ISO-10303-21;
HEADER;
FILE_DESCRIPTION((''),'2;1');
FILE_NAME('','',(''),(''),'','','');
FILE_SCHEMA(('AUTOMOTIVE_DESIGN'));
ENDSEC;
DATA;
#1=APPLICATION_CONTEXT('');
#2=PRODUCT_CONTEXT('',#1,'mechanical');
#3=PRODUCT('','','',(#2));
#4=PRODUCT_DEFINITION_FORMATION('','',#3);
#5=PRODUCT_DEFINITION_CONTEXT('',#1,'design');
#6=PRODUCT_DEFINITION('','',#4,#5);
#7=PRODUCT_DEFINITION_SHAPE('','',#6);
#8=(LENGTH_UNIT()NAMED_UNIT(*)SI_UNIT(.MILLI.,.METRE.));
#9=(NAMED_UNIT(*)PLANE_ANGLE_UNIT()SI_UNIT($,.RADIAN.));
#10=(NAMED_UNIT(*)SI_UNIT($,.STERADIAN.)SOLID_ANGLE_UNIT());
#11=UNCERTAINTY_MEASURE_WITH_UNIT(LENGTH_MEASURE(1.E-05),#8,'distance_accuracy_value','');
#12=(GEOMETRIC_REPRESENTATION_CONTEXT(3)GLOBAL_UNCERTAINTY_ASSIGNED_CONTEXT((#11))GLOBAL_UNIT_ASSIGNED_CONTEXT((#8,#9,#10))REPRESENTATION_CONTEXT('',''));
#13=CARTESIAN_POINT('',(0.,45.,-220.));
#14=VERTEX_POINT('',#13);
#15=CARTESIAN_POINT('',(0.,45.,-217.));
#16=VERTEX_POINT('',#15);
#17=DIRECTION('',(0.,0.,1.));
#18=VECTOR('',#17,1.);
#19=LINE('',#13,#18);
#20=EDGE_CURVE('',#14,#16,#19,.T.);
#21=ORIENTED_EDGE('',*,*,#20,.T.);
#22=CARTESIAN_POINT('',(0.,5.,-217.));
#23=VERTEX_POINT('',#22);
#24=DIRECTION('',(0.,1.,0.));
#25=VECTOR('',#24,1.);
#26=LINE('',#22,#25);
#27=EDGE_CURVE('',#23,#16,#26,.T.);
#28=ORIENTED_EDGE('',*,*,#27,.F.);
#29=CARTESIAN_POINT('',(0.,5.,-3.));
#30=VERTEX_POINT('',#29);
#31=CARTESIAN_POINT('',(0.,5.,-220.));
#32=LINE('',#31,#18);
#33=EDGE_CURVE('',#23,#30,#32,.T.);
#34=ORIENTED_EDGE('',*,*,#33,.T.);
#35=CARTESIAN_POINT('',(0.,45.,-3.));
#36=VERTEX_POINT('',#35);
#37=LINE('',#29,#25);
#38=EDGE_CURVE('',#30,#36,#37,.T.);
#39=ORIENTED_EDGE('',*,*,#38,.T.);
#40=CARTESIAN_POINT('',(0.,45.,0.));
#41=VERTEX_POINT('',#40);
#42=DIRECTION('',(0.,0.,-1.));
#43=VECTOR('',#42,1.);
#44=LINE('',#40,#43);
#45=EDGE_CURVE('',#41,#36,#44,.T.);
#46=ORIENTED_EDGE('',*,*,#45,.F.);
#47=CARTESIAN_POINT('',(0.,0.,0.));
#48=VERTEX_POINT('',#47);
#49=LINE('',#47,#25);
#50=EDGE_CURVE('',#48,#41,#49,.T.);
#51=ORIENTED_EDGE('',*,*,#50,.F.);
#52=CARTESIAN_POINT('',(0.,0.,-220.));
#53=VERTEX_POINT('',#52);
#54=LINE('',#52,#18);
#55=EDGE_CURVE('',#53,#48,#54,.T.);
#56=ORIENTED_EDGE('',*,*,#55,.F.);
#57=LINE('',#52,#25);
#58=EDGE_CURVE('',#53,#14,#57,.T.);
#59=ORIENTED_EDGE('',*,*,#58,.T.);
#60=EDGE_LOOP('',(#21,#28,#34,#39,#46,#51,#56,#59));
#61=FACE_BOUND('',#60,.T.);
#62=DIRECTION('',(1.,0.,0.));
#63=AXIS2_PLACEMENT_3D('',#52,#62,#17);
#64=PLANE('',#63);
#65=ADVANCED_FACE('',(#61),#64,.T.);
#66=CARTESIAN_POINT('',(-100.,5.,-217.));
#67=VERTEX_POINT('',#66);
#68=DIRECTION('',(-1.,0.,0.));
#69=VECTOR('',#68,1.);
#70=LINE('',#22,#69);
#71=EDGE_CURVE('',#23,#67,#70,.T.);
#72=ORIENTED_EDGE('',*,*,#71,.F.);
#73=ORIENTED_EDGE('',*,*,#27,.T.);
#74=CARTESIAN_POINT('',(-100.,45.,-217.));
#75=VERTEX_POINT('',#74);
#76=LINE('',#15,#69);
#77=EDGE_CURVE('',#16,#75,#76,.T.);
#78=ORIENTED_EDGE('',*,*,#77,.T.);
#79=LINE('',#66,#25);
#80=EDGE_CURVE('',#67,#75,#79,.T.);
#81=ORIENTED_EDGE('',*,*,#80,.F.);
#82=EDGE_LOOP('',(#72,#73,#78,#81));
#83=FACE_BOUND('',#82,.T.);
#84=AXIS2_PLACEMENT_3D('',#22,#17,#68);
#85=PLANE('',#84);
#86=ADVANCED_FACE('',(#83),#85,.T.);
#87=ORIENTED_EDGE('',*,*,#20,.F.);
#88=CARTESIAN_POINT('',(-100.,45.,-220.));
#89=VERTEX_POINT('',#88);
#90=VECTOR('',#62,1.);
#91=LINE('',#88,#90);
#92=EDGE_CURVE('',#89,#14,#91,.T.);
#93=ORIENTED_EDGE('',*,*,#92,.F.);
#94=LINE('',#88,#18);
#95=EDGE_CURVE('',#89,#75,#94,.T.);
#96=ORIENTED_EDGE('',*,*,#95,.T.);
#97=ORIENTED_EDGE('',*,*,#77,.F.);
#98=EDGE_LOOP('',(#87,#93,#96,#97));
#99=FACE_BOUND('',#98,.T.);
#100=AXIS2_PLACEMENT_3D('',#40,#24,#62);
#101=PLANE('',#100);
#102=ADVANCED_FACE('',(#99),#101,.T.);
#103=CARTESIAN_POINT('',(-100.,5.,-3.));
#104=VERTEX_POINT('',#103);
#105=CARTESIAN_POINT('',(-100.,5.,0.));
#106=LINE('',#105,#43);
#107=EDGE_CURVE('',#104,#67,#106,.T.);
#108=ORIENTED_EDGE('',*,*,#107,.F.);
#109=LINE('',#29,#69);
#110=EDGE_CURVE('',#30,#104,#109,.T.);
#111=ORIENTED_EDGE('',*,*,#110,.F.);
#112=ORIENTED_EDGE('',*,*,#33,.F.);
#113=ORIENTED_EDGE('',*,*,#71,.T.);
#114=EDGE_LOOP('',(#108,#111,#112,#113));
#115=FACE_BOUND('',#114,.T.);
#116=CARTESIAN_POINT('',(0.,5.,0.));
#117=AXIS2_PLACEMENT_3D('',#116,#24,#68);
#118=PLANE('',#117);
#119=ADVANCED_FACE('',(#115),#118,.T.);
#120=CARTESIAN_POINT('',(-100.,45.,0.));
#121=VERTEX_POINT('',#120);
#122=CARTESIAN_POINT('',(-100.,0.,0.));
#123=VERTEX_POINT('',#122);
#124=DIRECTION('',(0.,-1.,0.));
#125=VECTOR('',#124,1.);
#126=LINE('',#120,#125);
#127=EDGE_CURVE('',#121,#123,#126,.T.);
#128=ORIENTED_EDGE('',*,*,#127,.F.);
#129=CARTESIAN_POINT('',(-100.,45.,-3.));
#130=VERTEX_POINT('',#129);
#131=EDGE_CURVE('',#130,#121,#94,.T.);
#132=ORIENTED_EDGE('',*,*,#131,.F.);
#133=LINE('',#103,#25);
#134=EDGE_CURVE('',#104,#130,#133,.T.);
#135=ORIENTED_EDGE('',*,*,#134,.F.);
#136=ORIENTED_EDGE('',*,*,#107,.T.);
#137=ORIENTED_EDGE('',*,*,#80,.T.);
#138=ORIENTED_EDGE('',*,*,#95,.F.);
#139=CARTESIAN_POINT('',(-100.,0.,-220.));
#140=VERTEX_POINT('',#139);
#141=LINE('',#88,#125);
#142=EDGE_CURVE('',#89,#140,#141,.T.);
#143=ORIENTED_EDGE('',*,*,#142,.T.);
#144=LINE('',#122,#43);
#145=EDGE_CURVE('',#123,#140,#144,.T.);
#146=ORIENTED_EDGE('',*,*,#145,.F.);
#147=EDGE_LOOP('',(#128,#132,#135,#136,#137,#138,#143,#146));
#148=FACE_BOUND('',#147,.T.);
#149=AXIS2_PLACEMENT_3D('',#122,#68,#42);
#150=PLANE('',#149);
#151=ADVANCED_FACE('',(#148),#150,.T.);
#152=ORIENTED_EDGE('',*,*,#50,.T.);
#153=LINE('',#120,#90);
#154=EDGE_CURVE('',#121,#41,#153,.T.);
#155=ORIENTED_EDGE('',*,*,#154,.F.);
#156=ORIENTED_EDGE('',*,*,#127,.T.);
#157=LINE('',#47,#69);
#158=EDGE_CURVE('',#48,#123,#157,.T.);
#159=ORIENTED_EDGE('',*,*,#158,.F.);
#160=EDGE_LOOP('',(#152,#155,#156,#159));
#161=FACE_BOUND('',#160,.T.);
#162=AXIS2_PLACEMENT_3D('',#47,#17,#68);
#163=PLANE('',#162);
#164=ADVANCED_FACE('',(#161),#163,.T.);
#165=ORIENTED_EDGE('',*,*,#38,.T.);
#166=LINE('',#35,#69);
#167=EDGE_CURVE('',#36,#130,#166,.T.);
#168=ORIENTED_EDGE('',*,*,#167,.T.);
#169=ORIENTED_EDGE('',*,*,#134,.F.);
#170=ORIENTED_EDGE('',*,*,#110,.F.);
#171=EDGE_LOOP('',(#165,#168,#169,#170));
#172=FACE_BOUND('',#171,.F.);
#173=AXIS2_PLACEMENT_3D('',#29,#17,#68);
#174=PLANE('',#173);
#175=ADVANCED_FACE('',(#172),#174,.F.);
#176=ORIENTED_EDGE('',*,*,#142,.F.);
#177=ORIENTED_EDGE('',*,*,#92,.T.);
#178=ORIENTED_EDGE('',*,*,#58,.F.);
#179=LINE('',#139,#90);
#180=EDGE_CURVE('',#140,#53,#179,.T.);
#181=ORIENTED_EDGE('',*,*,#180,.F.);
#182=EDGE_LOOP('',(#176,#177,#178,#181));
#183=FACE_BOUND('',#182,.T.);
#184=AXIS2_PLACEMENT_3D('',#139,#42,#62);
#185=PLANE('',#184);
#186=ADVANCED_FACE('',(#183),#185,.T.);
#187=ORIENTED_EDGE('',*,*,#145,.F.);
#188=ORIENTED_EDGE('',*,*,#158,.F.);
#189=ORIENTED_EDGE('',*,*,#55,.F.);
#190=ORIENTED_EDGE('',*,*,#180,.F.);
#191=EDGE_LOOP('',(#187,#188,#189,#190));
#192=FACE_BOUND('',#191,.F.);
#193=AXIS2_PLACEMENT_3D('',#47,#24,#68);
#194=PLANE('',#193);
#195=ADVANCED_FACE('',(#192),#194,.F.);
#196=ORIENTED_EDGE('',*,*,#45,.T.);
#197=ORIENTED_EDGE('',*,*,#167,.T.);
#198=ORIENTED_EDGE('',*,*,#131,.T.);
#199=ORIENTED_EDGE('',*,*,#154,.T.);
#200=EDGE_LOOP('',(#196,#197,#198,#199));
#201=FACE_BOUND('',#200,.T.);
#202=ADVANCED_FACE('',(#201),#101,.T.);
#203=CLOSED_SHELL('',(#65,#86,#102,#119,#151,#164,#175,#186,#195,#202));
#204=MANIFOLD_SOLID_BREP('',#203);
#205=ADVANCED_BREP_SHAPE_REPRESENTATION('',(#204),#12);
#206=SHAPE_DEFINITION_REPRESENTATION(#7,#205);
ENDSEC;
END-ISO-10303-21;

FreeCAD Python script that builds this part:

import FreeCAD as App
import Part
import Sketcher
Q = App.Units.Quantity


def add_polygon(sketch, points):
    """Adds a closed chain of lines whose ends are joined by coincident constraints."""
    first, n = sketch.GeometryCount, len(points)
    for a, b in zip(points, points[1:] + points[:1]):
        sketch.addGeometry(Part.LineSegment(App.Vector(*a, 0), App.Vector(*b, 0)), False)
    for i in range(n):
        sketch.addConstraint(Sketcher.Constraint("Coincident", first + i, 2, first + (i + 1) % n, 1))

doc = App.newDocument("Part")
body = doc.addObject("PartDesign::Body", "Body")

sketch1 = doc.addObject("Sketcher::SketchObject", "Sketch")
body.addObject(sketch1)
sketch1.AttachmentSupport = (doc.XZ_Plane, [""])
sketch1.MapMode = "FlatFace"
add_polygon(sketch1, [(-100, 0), (0, 0), (0, -220), (-100, -220)])
sketch1.addConstraint(Sketcher.Constraint("Horizontal", 0))
sketch1.addConstraint(Sketcher.Constraint("Vertical", 1))
sketch1.addConstraint(Sketcher.Constraint("Horizontal", 2))
sketch1.addConstraint(Sketcher.Constraint("Vertical", 3))
sketch1.addConstraint(Sketcher.Constraint("Coincident", 0, 2, -1, 1))
sketch1.addConstraint(Sketcher.Constraint("DistanceX", 0, 1, 0, 2, Q("100 mm")))
sketch1.addConstraint(Sketcher.Constraint("DistanceY", 1, 2, 1, 1, Q("220 mm")))
pad1 = doc.addObject("PartDesign::Pad", "Pad")
body.addObject(pad1)
pad1.Profile = sketch1
pad1.Length = 5
pad1.Reversed = True

sketch2 = doc.addObject("Sketcher::SketchObject", "Sketch001")
body.addObject(sketch2)
sketch2.AttachmentSupport = (doc.XZ_Plane, [""])
sketch2.MapMode = "FlatFace"
sketch2.AttachmentOffset = App.Placement(App.Vector(0, 0, -5), App.Rotation())
add_polygon(sketch2, [(0, -220), (-100, -220), (-100, -217), (0, -217)])
add_polygon(sketch2, [(0, -3), (-100, -3), (-100, 0), (0, 0)])
sketch2.addConstraint(Sketcher.Constraint("Horizontal", 0))
sketch2.addConstraint(Sketcher.Constraint("Vertical", 1))
sketch2.addConstraint(Sketcher.Constraint("Horizontal", 2))
sketch2.addConstraint(Sketcher.Constraint("Vertical", 3))
sketch2.addConstraint(Sketcher.Constraint("Horizontal", 4))
sketch2.addConstraint(Sketcher.Constraint("Vertical", 5))
sketch2.addConstraint(Sketcher.Constraint("Horizontal", 6))
sketch2.addConstraint(Sketcher.Constraint("Vertical", 7))
sketch2.addConstraint(Sketcher.Constraint("Coincident", 6, 2, -1, 1))
sketch2.addConstraint(Sketcher.Constraint("PointOnObject", 2, 2, -2))
sketch2.addConstraint(Sketcher.Constraint("Vertical", 1, 2, 4, 2))
sketch2.addConstraint(Sketcher.Constraint("Equal", 3, 5))
sketch2.addConstraint(Sketcher.Constraint("DistanceX", 0, 2, 0, 1, Q("100 mm")))
sketch2.addConstraint(Sketcher.Constraint("DistanceY", 1, 1, 1, 2, Q("3 mm")))
sketch2.addConstraint(Sketcher.Constraint("DistanceY", 0, 2, -1, 1, Q("220 mm")))
pad2 = doc.addObject("PartDesign::Pad", "Pad001")
body.addObject(pad2)
pad2.Profile = sketch2
pad2.Length = 40
pad2.Reversed = True

doc.recompute()
